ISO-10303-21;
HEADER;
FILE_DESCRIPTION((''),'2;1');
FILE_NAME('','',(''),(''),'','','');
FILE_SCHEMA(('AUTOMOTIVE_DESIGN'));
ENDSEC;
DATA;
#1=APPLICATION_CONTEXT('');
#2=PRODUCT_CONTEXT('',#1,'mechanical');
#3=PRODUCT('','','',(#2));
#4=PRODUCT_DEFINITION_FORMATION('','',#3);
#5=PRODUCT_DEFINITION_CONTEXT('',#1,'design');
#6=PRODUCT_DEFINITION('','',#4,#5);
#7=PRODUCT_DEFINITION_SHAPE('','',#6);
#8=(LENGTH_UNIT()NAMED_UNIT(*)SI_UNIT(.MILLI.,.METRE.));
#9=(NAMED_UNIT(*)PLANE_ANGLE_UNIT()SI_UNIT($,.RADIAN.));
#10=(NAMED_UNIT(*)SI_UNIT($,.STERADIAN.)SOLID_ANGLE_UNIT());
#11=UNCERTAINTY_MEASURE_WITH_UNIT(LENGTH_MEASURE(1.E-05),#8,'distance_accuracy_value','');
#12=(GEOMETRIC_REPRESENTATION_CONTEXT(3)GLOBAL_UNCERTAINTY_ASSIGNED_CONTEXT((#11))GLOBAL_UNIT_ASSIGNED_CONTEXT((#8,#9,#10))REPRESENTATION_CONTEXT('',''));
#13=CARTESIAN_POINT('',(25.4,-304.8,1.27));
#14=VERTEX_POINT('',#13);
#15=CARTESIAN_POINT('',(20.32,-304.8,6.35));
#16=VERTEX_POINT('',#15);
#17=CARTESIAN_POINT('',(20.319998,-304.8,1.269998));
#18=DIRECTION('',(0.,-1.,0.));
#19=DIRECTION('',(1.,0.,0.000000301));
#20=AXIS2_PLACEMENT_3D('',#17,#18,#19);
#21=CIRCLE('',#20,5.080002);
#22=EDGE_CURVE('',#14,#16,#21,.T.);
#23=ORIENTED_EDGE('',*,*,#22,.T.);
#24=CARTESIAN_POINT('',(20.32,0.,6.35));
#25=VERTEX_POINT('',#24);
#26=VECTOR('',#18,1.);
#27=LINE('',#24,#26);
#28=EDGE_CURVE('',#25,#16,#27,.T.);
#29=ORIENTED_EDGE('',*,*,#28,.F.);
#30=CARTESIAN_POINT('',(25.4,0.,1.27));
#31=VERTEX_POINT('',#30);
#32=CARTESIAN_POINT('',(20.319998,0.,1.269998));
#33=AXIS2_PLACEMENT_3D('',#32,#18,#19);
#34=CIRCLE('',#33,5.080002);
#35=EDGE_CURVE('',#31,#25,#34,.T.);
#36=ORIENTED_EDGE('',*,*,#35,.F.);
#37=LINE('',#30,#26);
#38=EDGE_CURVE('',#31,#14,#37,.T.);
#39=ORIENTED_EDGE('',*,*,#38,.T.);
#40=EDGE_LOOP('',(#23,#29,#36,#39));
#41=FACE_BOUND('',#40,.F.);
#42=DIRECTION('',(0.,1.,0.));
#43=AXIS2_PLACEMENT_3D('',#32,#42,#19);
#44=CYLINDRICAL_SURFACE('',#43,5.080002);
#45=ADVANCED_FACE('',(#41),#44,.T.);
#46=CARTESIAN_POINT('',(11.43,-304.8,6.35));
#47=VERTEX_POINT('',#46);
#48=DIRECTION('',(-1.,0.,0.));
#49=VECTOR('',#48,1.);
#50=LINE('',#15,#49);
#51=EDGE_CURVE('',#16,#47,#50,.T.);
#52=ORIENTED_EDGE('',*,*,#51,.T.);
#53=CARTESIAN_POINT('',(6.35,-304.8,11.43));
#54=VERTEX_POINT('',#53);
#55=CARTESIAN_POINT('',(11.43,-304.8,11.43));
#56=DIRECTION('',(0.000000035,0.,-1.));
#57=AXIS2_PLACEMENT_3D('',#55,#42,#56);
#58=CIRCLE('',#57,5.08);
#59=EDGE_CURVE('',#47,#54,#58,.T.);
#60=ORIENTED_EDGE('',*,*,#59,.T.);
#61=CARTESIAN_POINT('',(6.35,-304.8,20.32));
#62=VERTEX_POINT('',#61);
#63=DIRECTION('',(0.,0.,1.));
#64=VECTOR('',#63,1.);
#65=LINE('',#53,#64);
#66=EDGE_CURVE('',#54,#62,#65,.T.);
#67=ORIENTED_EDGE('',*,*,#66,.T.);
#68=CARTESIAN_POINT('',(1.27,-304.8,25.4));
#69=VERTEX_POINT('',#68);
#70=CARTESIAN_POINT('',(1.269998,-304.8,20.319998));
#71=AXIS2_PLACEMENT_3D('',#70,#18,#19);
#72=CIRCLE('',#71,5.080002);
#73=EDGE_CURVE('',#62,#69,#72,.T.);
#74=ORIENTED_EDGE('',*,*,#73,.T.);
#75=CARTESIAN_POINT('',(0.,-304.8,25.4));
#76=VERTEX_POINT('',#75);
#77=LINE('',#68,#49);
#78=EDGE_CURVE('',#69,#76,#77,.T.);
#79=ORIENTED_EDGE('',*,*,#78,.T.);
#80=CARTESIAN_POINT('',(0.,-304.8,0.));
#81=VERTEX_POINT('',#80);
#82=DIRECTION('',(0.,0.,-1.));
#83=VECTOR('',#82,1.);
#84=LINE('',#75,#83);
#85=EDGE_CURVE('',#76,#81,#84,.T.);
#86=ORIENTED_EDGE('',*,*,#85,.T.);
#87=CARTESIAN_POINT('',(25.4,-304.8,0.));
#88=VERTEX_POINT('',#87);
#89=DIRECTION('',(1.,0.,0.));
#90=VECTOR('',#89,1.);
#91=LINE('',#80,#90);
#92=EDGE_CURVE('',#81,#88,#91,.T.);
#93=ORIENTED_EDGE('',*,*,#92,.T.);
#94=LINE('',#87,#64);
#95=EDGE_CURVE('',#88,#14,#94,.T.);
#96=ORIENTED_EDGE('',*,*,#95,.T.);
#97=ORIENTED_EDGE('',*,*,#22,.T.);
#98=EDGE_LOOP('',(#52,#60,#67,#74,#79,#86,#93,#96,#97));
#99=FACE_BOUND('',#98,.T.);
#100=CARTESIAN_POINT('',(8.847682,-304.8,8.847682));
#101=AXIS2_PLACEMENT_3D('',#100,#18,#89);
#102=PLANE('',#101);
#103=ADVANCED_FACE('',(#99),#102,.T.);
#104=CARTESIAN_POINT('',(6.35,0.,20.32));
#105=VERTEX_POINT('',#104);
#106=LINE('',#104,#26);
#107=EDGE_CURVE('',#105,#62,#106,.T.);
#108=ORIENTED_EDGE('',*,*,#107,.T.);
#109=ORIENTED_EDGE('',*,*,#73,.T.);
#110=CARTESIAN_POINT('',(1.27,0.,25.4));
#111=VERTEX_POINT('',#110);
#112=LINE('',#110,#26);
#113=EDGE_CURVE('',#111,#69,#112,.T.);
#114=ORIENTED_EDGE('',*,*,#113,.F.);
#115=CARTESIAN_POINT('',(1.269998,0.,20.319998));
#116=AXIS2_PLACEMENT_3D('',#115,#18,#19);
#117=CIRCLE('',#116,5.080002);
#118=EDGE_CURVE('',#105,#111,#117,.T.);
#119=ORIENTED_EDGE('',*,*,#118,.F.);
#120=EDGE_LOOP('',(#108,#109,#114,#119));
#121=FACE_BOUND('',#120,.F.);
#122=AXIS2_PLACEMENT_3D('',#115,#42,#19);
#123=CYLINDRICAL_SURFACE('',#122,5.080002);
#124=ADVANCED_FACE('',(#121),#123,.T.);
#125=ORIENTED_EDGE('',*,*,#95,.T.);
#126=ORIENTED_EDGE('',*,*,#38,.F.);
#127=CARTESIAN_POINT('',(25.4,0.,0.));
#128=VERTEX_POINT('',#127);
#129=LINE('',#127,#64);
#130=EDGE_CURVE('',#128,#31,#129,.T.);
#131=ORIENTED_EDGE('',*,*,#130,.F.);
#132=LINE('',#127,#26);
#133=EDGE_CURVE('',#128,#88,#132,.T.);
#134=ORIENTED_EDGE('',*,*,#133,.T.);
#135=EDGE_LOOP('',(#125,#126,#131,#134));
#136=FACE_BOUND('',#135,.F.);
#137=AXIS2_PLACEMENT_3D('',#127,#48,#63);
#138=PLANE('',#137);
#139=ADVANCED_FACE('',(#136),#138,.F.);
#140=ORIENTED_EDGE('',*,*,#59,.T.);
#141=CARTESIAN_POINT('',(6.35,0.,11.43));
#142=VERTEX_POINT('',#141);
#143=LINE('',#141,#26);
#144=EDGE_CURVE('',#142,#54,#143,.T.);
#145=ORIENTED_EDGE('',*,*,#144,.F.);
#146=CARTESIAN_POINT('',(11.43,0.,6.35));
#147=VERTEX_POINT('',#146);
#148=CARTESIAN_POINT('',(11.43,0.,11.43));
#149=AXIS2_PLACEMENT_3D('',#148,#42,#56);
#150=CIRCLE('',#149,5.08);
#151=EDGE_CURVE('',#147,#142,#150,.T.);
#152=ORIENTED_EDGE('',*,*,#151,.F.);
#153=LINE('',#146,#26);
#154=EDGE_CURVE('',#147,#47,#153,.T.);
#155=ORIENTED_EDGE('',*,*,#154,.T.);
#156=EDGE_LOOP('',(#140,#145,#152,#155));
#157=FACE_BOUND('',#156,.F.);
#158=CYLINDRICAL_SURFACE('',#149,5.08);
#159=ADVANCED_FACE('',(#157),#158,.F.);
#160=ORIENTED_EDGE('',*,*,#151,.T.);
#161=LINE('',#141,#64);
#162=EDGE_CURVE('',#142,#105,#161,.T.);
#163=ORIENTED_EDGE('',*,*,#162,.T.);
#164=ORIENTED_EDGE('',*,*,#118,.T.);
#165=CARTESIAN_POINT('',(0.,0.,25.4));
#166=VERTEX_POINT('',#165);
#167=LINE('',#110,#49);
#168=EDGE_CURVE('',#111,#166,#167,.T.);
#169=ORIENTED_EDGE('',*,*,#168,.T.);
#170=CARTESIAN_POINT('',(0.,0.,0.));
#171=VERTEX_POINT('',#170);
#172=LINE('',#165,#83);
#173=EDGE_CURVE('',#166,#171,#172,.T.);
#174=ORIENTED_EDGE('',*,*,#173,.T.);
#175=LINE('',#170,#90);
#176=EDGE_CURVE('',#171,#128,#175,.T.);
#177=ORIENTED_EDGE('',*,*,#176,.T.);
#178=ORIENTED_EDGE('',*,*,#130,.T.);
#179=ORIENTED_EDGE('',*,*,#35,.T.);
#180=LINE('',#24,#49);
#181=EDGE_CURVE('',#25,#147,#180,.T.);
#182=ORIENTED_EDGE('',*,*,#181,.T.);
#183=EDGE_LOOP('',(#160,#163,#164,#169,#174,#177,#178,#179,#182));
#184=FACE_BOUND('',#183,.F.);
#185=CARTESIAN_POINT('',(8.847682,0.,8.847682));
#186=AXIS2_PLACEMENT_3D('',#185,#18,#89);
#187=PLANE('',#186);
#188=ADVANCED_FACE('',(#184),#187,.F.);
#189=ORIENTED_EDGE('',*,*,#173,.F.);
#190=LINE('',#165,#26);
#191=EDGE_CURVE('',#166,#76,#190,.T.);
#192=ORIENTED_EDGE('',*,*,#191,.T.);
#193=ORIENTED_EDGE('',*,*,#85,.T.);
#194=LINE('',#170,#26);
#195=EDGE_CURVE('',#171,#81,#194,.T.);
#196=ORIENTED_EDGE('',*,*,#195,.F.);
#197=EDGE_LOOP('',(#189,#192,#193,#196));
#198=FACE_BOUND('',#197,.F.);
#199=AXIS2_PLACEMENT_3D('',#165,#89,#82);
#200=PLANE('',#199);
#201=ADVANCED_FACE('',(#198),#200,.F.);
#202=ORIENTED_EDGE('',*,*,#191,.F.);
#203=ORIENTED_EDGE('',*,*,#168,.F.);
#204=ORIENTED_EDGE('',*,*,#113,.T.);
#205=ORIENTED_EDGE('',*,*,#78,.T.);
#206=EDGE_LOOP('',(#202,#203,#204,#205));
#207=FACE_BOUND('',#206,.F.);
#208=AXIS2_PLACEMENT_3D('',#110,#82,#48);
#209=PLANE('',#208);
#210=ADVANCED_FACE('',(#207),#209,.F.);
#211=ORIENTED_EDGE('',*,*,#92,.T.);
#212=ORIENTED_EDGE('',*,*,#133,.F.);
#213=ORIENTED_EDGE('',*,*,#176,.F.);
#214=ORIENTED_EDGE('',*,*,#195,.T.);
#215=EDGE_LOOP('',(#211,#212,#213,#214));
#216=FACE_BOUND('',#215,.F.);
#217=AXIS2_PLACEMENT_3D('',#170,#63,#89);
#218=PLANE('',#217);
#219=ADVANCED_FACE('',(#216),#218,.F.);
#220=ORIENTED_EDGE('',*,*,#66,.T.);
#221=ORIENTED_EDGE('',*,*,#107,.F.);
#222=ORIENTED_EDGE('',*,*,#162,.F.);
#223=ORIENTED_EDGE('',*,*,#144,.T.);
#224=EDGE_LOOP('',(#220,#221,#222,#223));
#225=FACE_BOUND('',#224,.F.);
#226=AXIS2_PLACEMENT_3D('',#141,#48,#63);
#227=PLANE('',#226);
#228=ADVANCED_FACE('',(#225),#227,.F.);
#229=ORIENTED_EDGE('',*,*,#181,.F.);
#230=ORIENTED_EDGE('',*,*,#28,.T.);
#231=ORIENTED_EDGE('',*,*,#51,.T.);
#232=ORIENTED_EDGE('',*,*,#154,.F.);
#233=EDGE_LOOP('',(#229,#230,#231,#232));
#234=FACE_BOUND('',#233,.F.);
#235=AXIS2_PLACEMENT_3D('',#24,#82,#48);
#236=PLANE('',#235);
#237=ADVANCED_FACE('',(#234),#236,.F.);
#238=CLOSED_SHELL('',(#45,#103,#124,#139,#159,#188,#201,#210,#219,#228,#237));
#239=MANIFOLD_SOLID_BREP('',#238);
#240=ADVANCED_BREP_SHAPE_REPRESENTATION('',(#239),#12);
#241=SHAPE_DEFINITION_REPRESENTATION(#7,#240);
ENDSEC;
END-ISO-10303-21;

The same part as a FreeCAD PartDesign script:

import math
import FreeCAD as App
import Part
import Sketcher

V = App.Vector
Q = App.Units.Quantity

doc = App.newDocument("Part")
body = doc.addObject("PartDesign::Body", "Body")

# Sketch on XZ plane
sketch1 = doc.addObject("Sketcher::SketchObject", "Sketch")
body.addObject(sketch1)
sketch1.AttachmentSupport = (doc.XZ_Plane, [""])
sketch1.MapMode = "FlatFace"
sketch1.addGeometry(Part.LineSegment(V(0, 25.4, 0), V(0, 0, 0)), False)
sketch1.addGeometry(Part.LineSegment(V(0, 0, 0), V(25.4, 0, 0)), False)
sketch1.addGeometry(Part.LineSegment(V(25.4, 0, 0), V(25.4, 1.27, 0)), False)
sketch1.addGeometry(Part.ArcOfCircle(Part.Circle(V(20.319998, 1.269998, 0), V(0, 0, 1), 5.080002), math.radians(0.000017), math.radians(89.999983)), False)
sketch1.addGeometry(Part.LineSegment(V(20.32, 6.35, 0), V(11.43, 6.35, 0)), False)
sketch1.addGeometry(Part.ArcOfCircle(Part.Circle(V(11.43, 11.43, 0), V(0, 0, 1), 5.08), math.radians(179.999998), math.radians(270.000002)), False)
sketch1.addGeometry(Part.LineSegment(V(6.35, 11.43, 0), V(6.35, 20.32, 0)), False)
sketch1.addGeometry(Part.ArcOfCircle(Part.Circle(V(1.269998, 20.319998, 0), V(0, 0, 1), 5.080002), math.radians(0.000017), math.radians(89.999983)), False)
sketch1.addGeometry(Part.LineSegment(V(1.27, 25.4, 0), V(0, 25.4, 0)), False)
sketch1.addConstraint(Sketcher.Constraint("Coincident", 0, 2, 1, 1))
sketch1.addConstraint(Sketcher.Constraint("Coincident", 1, 2, 2, 1))
sketch1.addConstraint(Sketcher.Constraint("Tangent", 2, 2, 3, 1))
sketch1.addConstraint(Sketcher.Constraint("Tangent", 3, 2, 4, 1))
sketch1.addConstraint(Sketcher.Constraint("Tangent", 4, 2, 5, 2))
sketch1.addConstraint(Sketcher.Constraint("Tangent", 5, 1, 6, 1))
sketch1.addConstraint(Sketcher.Constraint("Tangent", 6, 2, 7, 1))
sketch1.addConstraint(Sketcher.Constraint("Tangent", 7, 2, 8, 1))
sketch1.addConstraint(Sketcher.Constraint("Coincident", 8, 2, 0, 1))
sketch1.addConstraint(Sketcher.Constraint("Vertical", 0))
sketch1.addConstraint(Sketcher.Constraint("Horizontal", 1))
sketch1.addConstraint(Sketcher.Constraint("Vertical", 2))
sketch1.addConstraint(Sketcher.Constraint("Horizontal", 4))
sketch1.addConstraint(Sketcher.Constraint("Vertical", 6))
sketch1.addConstraint(Sketcher.Constraint("Horizontal", 8))
sketch1.addConstraint(Sketcher.Constraint("Coincident", 0, 2, -1, 1))
sketch1.addConstraint(Sketcher.Constraint("Equal", 3, 5))
sketch1.addConstraint(Sketcher.Constraint("Equal", 5, 7))
sketch1.addConstraint(Sketcher.Constraint("Equal", 1, 0))
sketch1.addConstraint(Sketcher.Constraint("Equal", 8, 2))
sketch1.addConstraint(Sketcher.Constraint("Radius", 3, Q("0.2000001 in")))
sketch1.addConstraint(Sketcher.Constraint("DistanceX", 1, 1, 1, 2, Q("1 in")))
sketch1.addConstraint(Sketcher.Constraint("DistanceX", 4, 2, 4, 1, Q("0.35 in")))
pad1 = doc.addObject("PartDesign::Pad", "Pad")
body.addObject(pad1)
pad1.Profile = sketch1
pad1.Length = Q("12 in")

doc.recompute()
